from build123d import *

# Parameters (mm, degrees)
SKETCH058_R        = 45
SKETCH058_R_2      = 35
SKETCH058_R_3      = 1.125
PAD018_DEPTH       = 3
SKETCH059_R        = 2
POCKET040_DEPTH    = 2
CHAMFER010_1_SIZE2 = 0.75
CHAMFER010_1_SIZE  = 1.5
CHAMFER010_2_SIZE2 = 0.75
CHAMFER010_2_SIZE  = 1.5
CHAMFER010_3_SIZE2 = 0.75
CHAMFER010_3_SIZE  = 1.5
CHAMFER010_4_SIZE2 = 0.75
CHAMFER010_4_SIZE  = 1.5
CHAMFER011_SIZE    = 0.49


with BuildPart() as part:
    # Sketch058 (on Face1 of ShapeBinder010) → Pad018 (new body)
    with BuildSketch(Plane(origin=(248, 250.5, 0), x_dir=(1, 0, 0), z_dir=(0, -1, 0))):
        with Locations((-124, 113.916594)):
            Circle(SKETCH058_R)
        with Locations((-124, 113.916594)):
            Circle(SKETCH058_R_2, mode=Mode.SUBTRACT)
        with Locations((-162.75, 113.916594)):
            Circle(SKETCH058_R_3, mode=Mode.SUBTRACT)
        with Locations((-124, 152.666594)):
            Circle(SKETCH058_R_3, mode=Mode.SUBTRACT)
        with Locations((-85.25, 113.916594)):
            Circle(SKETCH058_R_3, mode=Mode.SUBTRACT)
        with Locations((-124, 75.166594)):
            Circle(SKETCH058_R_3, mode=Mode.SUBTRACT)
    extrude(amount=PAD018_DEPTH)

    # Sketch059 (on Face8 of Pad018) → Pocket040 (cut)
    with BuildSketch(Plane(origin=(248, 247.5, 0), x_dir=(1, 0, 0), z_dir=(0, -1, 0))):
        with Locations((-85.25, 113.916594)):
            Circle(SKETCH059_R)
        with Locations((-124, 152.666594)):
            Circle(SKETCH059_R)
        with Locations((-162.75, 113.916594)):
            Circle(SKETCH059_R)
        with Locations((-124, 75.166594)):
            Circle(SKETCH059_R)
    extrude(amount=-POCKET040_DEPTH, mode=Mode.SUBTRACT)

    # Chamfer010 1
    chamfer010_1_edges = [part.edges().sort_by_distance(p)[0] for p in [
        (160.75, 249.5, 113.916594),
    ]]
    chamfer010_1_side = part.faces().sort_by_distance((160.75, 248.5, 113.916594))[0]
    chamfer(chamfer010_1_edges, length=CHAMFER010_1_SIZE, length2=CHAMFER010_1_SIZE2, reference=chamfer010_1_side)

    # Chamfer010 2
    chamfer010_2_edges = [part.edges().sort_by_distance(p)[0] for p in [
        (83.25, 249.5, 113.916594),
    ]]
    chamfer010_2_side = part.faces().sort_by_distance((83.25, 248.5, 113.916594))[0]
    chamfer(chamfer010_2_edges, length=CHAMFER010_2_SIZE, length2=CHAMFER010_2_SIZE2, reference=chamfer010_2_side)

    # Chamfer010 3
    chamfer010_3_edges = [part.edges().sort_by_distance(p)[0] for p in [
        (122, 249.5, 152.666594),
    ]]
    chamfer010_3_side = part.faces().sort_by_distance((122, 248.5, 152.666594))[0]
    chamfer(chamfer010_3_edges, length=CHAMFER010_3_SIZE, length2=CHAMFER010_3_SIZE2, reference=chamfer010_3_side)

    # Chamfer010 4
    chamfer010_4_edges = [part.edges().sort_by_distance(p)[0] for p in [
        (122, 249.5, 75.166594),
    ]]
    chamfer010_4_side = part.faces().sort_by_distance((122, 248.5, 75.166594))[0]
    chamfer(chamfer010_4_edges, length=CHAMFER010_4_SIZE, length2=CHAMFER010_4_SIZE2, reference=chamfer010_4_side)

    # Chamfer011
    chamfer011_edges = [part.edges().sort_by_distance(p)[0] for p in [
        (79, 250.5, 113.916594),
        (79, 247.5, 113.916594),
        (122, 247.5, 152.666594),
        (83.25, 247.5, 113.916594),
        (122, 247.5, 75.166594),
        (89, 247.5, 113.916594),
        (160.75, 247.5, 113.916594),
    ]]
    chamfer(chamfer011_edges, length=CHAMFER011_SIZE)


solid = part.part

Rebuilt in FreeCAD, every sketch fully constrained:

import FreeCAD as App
import Part
import Sketcher
from FreeCAD import Vector
Q = App.Units.Quantity


def edges_at(feature, points):
    """Names of the edges that pass closest to the given points."""
    edges = feature.Shape.Edges
    near = lambda p: min(range(len(edges)), key=lambda i: edges[i].distToShape(Part.Vertex(*p))[0])
    return sorted({f"Edge{near(p) + 1}" for p in points})

doc = App.newDocument("Part")
body = doc.addObject("PartDesign::Body", "Body")

# Sketch on XZ plane
sketch1 = body.newObject("Sketcher::SketchObject", "Sketch")
sketch1.AttachmentSupport = (doc.getObject("XZ_Plane"), [""])
sketch1.MapMode = "FlatFace"
sketch1.AttachmentOffset = App.Placement(Vector(0, 0, -250.5), App.Rotation())
sketch1.addGeometry(Part.Circle(Vector(124, 113.9, 0), Vector(0, 0, 1), 45), False)
sketch1.addGeometry(Part.Circle(Vector(124, 75.2, 0), Vector(0, 0, 1), 1.1), False)
sketch1.addGeometry(Part.Circle(Vector(85.2, 113.9, 0), Vector(0, 0, 1), 1.1), False)
sketch1.addGeometry(Part.Circle(Vector(124, 113.9, 0), Vector(0, 0, 1), 35), False)
sketch1.addGeometry(Part.Circle(Vector(162.8, 113.9, 0), Vector(0, 0, 1), 1.1), False)
sketch1.addGeometry(Part.Circle(Vector(124, 152.7, 0), Vector(0, 0, 1), 1.1), False)
sketch1.addConstraint(Sketcher.Constraint("Coincident", 3, 3, 0, 3))
sketch1.addConstraint(Sketcher.Constraint("Equal", 1, 2))
sketch1.addConstraint(Sketcher.Constraint("Equal", 2, 4))
sketch1.addConstraint(Sketcher.Constraint("Equal", 4, 5))
sketch1.addConstraint(Sketcher.Constraint("Horizontal", 0, 3, 2, 3))
sketch1.addConstraint(Sketcher.Constraint("Horizontal", 3, 3, 4, 3))
sketch1.addConstraint(Sketcher.Constraint("Vertical", 0, 3, 1, 3))
sketch1.addConstraint(Sketcher.Constraint("Vertical", 3, 3, 5, 3))
sketch1.addConstraint(Sketcher.Constraint("Diameter", 0, Q("90 mm")))
sketch1.addConstraint(Sketcher.Constraint("Diameter", 3, Q("70 mm")))
sketch1.addConstraint(Sketcher.Constraint("Diameter", 1, Q("2.25 mm")))
sketch1.addConstraint(Sketcher.Constraint("DistanceX", -1, 1, 0, 3, Q("124 mm")))
sketch1.addConstraint(Sketcher.Constraint("DistanceX", 2, 3, 4, 3, Q("77.5 mm")))
sketch1.addConstraint(Sketcher.Constraint("DistanceY", 1, 3, 5, 3, Q("77.5 mm")))
sketch1.addConstraint(Sketcher.Constraint("DistanceX", -1, 1, 2, 3, Q("85.25 mm")))
sketch1.addConstraint(Sketcher.Constraint("DistanceY", 1, 3, 0, 3, Q("38.75 mm")))
sketch1.addConstraint(Sketcher.Constraint("DistanceY", -1, 1, 0, 3, Q("113.916594 mm")))
pad1 = body.newObject("PartDesign::Pad", "Pad")
pad1.Profile = sketch1
pad1.Length = 3

# Sketch on XZ plane
sketch2 = body.newObject("Sketcher::SketchObject", "Sketch001")
sketch2.AttachmentSupport = (doc.getObject("XZ_Plane"), [""])
sketch2.MapMode = "FlatFace"
sketch2.AttachmentOffset = App.Placement(Vector(0, 0, -247.5), App.Rotation())
sketch2.addGeometry(Part.Circle(Vector(162.8, 113.9, 0), Vector(0, 0, 1), 2), False)
sketch2.addGeometry(Part.Circle(Vector(124, 152.7, 0), Vector(0, 0, 1), 2), False)
sketch2.addGeometry(Part.Circle(Vector(85.2, 113.9, 0), Vector(0, 0, 1), 2), False)
sketch2.addGeometry(Part.Circle(Vector(124, 75.2, 0), Vector(0, 0, 1), 2), False)
sketch2.addConstraint(Sketcher.Constraint("Equal", 0, 1))
sketch2.addConstraint(Sketcher.Constraint("Equal", 1, 2))
sketch2.addConstraint(Sketcher.Constraint("Equal", 2, 3))
sketch2.addConstraint(Sketcher.Constraint("Horizontal", 0, 3, 2, 3))
sketch2.addConstraint(Sketcher.Constraint("Vertical", 1, 3, 3, 3))
sketch2.addConstraint(Sketcher.Constraint("Diameter", 0, Q("4 mm")))
sketch2.addConstraint(Sketcher.Constraint("DistanceX", -1, 1, 1, 3, Q("124 mm")))
sketch2.addConstraint(Sketcher.Constraint("DistanceX", 2, 3, 0, 3, Q("77.5 mm")))
sketch2.addConstraint(Sketcher.Constraint("DistanceY", 3, 3, 1, 3, Q("77.5 mm")))
sketch2.addConstraint(Sketcher.Constraint("DistanceX", -1, 1, 0, 3, Q("162.75 mm")))
sketch2.addConstraint(Sketcher.Constraint("DistanceY", 0, 3, 1, 3, Q("38.75 mm")))
sketch2.addConstraint(Sketcher.Constraint("DistanceY", -1, 1, 0, 3, Q("113.916594 mm")))
pocket1 = body.newObject("PartDesign::Pocket", "Pocket")
pocket1.Profile = sketch2
pocket1.Length = 2
doc.recompute()

chamfer = body.newObject("PartDesign::Chamfer", "Chamfer")
chamfer.Base = (pocket1, edges_at(pocket1, [(160.75, 249.5, 113.917)]))
chamfer.ChamferType = "Two distances"
chamfer.Size = 1.5
chamfer.Size2 = 0.75
doc.recompute()

chamfer2 = body.newObject("PartDesign::Chamfer", "Chamfer001")
chamfer2.Base = (chamfer, edges_at(chamfer, [(83.25, 249.5, 113.917)]))
chamfer2.ChamferType = "Two distances"
chamfer2.Size = 1.5
chamfer2.Size2 = 0.75
doc.recompute()

chamfer3 = body.newObject("PartDesign::Chamfer", "Chamfer002")
chamfer3.Base = (chamfer2, edges_at(chamfer2, [(122, 249.5, 152.667)]))
chamfer3.ChamferType = "Two distances"
chamfer3.Size = 1.5
chamfer3.Size2 = 0.75
doc.recompute()

chamfer4 = body.newObject("PartDesign::Chamfer", "Chamfer003")
chamfer4.Base = (chamfer3, edges_at(chamfer3, [(122, 249.5, 75.167)]))
chamfer4.ChamferType = "Two distances"
chamfer4.Size = 1.5
chamfer4.Size2 = 0.75
doc.recompute()

chamfer5 = body.newObject("PartDesign::Chamfer", "Chamfer004")
chamfer5.Base = (chamfer4, edges_at(chamfer4, [
    (79, 250.5, 113.917),
    (79, 247.5, 113.917),
    (122, 247.5, 152.667),
    (83.25, 247.5, 113.917),
    (122, 247.5, 75.167),
    (89, 247.5, 113.917),
    (160.75, 247.5, 113.917),
]))
chamfer5.Size = 0.49

doc.recompute()
